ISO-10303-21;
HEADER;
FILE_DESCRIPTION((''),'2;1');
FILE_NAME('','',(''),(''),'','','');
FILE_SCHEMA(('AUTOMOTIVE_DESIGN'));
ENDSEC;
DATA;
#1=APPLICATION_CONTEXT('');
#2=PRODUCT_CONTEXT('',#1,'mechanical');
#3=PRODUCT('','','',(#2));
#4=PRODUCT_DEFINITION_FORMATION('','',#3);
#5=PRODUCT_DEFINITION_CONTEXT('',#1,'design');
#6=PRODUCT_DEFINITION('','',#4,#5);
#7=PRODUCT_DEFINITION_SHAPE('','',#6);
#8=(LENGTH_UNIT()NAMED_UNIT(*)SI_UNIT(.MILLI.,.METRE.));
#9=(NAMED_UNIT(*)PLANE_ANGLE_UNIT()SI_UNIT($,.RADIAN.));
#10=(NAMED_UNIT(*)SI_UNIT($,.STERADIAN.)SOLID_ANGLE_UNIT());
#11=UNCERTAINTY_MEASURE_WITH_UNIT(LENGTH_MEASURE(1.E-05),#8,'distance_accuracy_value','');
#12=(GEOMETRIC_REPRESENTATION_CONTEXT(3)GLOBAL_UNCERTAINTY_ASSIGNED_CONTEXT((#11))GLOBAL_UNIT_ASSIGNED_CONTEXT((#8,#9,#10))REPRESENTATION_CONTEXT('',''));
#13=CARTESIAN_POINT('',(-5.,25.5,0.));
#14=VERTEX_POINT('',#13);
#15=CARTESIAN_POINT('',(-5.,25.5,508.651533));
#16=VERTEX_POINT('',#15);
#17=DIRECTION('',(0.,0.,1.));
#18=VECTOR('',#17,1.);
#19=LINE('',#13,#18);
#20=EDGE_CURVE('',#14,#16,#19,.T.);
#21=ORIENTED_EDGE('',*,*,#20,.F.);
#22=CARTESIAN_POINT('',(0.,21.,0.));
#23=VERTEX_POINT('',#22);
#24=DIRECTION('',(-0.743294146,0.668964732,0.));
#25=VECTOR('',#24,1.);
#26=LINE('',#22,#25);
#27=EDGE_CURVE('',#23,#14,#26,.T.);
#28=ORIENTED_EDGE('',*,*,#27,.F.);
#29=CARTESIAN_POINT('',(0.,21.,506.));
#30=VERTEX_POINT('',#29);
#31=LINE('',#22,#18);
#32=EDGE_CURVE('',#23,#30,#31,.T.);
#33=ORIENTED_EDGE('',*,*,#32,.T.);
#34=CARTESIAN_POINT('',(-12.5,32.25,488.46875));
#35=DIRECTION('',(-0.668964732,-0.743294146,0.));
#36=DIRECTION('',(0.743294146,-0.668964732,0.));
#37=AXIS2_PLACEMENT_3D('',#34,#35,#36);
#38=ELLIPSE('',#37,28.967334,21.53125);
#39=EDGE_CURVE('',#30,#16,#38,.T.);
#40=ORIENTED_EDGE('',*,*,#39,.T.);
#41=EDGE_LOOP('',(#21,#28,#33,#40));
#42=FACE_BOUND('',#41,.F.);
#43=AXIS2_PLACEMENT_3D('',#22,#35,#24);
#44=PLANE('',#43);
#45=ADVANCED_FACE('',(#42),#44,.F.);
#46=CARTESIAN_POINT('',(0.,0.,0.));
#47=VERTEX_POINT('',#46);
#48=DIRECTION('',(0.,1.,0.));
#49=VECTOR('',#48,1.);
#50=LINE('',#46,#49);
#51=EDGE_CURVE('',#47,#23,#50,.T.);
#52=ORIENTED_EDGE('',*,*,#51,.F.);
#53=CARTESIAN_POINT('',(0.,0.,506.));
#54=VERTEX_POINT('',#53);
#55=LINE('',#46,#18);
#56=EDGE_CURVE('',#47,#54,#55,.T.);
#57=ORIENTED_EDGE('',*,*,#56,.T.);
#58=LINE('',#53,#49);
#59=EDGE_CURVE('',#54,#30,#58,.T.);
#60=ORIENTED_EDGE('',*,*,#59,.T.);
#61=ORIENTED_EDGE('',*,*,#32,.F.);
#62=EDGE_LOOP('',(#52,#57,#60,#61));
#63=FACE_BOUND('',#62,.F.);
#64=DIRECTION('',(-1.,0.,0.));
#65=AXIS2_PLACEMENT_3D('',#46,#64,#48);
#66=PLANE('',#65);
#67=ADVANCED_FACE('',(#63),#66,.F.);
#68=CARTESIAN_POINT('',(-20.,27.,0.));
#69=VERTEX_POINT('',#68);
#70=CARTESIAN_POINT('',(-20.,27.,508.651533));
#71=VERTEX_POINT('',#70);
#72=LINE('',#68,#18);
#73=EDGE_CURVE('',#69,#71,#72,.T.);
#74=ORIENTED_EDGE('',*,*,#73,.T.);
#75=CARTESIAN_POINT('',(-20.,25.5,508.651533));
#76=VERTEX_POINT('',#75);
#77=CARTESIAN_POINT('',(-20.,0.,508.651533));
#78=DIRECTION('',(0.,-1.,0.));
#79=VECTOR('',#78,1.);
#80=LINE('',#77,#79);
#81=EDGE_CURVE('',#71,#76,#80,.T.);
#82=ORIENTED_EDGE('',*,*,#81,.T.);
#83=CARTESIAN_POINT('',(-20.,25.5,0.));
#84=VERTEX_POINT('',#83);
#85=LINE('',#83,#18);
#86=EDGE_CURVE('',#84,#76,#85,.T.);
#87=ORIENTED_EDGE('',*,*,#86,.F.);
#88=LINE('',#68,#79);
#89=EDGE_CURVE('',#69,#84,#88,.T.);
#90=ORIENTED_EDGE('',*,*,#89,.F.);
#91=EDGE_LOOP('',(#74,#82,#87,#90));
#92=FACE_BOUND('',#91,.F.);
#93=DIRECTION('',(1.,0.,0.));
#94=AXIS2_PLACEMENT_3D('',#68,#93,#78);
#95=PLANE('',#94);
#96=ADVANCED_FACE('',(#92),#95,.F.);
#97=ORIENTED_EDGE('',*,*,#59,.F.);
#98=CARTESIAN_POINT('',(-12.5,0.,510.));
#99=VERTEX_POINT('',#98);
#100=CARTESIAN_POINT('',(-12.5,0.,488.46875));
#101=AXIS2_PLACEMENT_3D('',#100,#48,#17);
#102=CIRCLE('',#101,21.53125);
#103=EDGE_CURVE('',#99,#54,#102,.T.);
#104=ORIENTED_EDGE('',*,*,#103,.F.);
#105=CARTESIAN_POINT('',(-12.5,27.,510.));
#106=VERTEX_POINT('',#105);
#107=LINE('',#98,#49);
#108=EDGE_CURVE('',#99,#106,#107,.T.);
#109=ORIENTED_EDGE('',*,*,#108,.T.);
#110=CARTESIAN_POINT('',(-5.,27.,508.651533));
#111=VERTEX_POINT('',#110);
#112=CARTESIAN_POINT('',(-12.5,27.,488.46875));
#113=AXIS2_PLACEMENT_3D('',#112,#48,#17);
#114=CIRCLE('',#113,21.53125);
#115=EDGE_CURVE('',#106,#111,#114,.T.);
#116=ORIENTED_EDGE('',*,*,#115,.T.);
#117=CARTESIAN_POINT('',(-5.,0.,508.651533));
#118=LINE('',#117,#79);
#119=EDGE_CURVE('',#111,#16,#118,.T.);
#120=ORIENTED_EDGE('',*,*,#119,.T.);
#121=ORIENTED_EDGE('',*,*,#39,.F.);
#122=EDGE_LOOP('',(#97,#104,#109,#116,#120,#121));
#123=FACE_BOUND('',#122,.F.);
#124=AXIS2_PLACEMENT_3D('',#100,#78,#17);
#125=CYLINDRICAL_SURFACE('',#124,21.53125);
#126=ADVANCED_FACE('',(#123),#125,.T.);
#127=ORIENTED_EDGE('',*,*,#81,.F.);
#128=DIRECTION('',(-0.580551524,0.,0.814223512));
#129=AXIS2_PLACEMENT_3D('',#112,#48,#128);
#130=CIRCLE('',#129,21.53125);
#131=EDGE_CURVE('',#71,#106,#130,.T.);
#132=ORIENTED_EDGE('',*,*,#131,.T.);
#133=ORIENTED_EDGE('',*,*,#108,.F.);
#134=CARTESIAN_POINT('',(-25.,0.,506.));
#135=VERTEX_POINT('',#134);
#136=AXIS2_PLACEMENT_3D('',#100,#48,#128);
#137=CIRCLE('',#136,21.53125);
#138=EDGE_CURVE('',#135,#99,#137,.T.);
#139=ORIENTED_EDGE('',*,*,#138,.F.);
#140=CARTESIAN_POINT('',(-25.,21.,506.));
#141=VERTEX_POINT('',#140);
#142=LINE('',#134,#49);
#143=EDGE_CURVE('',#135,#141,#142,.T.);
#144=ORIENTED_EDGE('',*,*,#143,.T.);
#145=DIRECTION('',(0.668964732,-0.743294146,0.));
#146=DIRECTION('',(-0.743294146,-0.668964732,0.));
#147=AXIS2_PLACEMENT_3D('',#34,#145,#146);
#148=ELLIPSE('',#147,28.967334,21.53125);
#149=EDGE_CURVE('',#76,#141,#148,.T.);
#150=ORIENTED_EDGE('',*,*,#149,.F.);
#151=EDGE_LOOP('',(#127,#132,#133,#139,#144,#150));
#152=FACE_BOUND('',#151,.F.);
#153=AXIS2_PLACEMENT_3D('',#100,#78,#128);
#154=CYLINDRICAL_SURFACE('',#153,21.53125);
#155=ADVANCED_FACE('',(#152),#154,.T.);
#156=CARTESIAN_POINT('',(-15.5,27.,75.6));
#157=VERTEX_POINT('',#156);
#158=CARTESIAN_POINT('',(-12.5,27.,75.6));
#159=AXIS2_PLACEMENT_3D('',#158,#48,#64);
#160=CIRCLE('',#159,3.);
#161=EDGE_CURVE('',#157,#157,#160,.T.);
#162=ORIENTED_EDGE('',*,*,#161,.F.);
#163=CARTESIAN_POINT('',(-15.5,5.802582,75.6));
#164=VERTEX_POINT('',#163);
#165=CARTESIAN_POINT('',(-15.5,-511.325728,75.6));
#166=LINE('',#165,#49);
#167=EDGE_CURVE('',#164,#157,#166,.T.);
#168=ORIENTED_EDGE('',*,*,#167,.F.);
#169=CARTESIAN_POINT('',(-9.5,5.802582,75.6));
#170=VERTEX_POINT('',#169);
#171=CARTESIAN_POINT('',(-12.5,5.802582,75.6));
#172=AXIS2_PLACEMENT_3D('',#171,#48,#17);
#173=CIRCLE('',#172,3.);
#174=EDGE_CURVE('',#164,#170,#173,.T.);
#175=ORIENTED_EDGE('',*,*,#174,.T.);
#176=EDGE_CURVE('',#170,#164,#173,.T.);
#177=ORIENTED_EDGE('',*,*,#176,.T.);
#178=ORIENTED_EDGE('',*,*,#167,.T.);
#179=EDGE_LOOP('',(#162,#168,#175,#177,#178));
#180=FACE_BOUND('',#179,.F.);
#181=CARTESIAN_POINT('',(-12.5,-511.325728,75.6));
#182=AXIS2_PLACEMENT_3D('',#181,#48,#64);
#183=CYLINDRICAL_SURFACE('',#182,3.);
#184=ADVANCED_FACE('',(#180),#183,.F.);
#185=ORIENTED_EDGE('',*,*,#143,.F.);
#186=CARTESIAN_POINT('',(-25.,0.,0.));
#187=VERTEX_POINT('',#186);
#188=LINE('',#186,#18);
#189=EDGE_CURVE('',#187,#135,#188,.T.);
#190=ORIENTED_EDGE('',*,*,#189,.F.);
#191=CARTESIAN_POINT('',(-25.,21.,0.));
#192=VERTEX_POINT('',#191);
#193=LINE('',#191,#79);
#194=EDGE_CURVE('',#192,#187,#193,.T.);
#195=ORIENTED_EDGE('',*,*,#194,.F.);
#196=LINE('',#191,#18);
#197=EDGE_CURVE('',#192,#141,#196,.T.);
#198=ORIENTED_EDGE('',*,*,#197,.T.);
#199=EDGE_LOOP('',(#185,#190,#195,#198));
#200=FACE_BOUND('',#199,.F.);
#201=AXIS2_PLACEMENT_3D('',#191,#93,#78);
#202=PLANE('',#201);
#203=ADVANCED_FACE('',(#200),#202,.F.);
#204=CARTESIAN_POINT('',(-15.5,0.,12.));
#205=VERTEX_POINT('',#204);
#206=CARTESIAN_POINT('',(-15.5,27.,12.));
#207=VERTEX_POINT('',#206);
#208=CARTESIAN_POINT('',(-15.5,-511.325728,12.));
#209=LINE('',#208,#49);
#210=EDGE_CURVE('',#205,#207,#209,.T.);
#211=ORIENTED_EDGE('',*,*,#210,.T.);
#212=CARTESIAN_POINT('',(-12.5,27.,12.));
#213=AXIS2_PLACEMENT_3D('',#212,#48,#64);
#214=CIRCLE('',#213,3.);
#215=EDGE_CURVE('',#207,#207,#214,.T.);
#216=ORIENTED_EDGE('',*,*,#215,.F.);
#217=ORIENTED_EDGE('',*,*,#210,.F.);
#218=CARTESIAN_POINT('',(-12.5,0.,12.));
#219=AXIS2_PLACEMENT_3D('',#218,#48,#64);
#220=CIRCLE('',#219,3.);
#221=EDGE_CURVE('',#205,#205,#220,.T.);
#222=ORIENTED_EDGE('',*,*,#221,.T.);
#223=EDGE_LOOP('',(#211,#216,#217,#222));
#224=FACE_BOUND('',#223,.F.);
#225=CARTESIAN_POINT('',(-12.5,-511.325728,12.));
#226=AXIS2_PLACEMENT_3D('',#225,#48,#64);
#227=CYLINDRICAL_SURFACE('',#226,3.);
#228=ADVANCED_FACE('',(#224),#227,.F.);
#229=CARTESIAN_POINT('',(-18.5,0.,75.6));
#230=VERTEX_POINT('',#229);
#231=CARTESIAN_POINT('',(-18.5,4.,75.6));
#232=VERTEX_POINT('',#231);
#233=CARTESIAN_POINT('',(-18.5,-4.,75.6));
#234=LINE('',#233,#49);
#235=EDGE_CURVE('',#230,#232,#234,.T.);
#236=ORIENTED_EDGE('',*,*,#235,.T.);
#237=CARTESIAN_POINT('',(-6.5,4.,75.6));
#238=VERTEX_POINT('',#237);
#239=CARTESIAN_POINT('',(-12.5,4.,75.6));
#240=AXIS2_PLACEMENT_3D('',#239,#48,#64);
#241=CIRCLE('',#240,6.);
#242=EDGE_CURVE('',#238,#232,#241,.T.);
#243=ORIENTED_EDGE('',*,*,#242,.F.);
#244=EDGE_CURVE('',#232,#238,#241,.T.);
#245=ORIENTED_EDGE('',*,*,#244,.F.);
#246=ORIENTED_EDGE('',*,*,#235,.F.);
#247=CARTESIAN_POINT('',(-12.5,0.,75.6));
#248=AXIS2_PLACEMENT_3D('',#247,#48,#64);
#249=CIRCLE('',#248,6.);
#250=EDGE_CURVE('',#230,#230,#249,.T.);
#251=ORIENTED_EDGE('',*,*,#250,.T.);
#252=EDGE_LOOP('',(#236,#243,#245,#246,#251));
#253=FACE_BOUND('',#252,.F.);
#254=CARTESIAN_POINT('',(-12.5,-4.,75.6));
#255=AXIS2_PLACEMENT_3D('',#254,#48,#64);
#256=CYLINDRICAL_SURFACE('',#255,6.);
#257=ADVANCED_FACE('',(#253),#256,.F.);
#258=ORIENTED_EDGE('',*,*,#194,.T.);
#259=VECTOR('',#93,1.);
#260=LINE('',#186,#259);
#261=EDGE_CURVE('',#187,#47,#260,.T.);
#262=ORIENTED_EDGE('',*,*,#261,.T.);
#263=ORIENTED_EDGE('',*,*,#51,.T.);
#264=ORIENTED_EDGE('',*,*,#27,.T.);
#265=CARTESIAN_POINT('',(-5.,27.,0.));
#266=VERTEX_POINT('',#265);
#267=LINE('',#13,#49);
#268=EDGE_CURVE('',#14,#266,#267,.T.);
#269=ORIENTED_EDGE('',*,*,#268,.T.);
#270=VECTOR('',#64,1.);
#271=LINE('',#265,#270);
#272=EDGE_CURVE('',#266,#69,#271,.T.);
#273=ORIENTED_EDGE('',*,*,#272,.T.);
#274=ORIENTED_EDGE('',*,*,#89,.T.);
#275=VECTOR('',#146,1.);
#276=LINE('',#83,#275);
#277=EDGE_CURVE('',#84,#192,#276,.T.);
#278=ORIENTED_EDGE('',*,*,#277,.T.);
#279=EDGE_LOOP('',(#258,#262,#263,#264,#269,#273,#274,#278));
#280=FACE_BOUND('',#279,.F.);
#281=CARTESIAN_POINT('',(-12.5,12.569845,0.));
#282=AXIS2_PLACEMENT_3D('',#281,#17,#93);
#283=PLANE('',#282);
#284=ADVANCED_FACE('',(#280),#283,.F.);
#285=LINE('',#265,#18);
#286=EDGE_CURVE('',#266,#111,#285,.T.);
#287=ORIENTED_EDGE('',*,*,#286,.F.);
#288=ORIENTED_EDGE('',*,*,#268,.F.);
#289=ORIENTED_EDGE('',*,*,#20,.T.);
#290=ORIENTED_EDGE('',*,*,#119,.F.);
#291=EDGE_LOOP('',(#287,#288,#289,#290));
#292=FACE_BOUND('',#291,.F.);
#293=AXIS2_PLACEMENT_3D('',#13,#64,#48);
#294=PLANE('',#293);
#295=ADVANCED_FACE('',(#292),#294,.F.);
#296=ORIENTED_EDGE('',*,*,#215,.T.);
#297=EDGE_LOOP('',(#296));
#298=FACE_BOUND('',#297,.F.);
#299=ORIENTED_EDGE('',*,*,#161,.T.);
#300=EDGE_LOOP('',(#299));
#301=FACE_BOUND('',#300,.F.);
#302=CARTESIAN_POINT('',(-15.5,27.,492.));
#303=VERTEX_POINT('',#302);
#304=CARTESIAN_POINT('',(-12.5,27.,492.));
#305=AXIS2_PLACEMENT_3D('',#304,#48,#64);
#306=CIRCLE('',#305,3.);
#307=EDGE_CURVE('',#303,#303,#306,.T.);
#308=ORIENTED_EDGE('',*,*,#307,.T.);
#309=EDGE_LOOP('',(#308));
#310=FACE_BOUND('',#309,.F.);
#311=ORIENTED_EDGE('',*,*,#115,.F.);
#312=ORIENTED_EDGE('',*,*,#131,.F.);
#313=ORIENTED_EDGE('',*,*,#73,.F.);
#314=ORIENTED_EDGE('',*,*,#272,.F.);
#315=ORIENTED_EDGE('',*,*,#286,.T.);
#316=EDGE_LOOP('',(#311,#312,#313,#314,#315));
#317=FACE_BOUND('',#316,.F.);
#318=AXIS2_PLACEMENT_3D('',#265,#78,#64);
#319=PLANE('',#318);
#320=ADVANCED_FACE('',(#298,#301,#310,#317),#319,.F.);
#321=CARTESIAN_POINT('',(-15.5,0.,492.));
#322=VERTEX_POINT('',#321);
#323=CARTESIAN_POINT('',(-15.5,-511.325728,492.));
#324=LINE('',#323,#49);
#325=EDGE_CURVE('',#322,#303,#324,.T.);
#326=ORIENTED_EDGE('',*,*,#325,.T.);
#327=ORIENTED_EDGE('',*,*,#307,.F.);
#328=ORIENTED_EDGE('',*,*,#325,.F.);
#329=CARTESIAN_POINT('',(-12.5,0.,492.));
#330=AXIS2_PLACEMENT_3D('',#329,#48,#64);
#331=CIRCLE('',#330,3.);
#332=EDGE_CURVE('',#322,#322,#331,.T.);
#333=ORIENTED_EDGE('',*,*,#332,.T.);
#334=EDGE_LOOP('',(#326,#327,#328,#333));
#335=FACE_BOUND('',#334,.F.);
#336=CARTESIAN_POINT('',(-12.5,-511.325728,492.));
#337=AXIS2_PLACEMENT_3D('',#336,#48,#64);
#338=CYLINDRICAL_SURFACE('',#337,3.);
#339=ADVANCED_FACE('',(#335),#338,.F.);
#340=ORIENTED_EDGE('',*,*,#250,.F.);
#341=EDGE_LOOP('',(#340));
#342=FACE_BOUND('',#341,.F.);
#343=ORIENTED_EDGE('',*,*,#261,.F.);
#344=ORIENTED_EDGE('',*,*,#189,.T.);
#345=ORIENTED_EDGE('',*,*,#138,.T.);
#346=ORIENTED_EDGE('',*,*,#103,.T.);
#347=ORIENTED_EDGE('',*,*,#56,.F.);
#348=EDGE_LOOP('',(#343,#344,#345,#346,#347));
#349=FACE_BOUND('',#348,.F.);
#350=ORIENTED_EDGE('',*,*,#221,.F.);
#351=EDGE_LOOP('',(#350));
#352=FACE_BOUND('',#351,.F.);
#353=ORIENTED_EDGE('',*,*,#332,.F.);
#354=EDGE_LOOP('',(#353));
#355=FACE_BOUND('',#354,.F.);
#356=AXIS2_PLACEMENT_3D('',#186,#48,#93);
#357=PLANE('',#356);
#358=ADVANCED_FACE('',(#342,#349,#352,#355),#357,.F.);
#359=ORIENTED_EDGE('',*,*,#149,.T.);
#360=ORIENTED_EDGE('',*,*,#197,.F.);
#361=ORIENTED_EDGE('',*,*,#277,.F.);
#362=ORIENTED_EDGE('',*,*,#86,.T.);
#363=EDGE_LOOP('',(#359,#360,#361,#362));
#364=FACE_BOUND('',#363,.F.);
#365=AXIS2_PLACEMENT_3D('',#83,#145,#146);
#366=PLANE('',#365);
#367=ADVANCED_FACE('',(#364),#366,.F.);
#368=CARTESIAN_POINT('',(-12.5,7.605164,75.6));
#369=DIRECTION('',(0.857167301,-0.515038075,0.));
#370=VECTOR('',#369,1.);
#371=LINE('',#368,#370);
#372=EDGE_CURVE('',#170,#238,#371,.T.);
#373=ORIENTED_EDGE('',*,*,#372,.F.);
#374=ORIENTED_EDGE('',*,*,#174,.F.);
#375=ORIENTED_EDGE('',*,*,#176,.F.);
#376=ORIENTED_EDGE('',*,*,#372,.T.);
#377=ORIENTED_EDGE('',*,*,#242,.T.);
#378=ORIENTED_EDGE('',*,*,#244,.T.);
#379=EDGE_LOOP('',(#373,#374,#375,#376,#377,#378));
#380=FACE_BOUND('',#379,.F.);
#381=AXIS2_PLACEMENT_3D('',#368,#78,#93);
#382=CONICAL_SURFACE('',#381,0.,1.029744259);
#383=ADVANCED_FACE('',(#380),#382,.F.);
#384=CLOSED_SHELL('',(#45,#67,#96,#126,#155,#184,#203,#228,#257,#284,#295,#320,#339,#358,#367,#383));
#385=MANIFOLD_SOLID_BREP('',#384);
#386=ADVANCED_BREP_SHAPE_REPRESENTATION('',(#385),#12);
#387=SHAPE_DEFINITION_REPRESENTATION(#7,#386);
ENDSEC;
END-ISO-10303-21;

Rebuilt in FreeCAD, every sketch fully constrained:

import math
import FreeCAD as App
import Part
import Sketcher
Q = App.Units.Quantity

doc = App.newDocument("Part")
body = doc.addObject("PartDesign::Body", "Body")

sketch1 = body.newObject("Sketcher::SketchObject", "Sketch")
sketch1.AttachmentSupport = (doc.getObject("XY_Plane"), [""])
sketch1.MapMode = "FlatFace"
sketch1.addGeometry(Part.LineSegment(App.Vector(-25, 0, 0), App.Vector(0, 0, 0)), False)
sketch1.addGeometry(Part.LineSegment(App.Vector(0, 0, 0), App.Vector(0, 21, 0)), False)
sketch1.addGeometry(Part.LineSegment(App.Vector(0, 21, 0), App.Vector(-5, 25.5, 0)), False)
sketch1.addGeometry(Part.LineSegment(App.Vector(-5, 25.5, 0), App.Vector(-5, 27, 0)), False)
sketch1.addGeometry(Part.LineSegment(App.Vector(-5, 27, 0), App.Vector(-20, 27, 0)), False)
sketch1.addGeometry(Part.LineSegment(App.Vector(-20, 27, 0), App.Vector(-20, 25.5, 0)), False)
sketch1.addGeometry(Part.LineSegment(App.Vector(-20, 25.5, 0), App.Vector(-25, 21, 0)), False)
sketch1.addGeometry(Part.LineSegment(App.Vector(-25, 21, 0), App.Vector(-25, 0, 0)), False)
sketch1.addConstraint(Sketcher.Constraint("Coincident", 0, 2, 1, 1))
sketch1.addConstraint(Sketcher.Constraint("Coincident", 1, 2, 2, 1))
sketch1.addConstraint(Sketcher.Constraint("Coincident", 2, 2, 3, 1))
sketch1.addConstraint(Sketcher.Constraint("Coincident", 3, 2, 4, 1))
sketch1.addConstraint(Sketcher.Constraint("Coincident", 4, 2, 5, 1))
sketch1.addConstraint(Sketcher.Constraint("Coincident", 5, 2, 6, 1))
sketch1.addConstraint(Sketcher.Constraint("Coincident", 6, 2, 7, 1))
sketch1.addConstraint(Sketcher.Constraint("Coincident", 7, 2, 0, 1))
sketch1.addConstraint(Sketcher.Constraint("Horizontal", 0))
sketch1.addConstraint(Sketcher.Constraint("Vertical", 1))
sketch1.addConstraint(Sketcher.Constraint("Vertical", 3))
sketch1.addConstraint(Sketcher.Constraint("Horizontal", 4))
sketch1.addConstraint(Sketcher.Constraint("Vertical", 5))
sketch1.addConstraint(Sketcher.Constraint("Vertical", 7))
sketch1.addConstraint(Sketcher.Constraint("Coincident", 0, 2, -1, 1))
sketch1.addConstraint(Sketcher.Constraint("Horizontal", 2, 2, 5, 2))
sketch1.addConstraint(Sketcher.Constraint("Horizontal", 1, 2, 6, 2))
sketch1.addConstraint(Sketcher.Constraint("Equal", 2, 6))
sketch1.addConstraint(Sketcher.Constraint("DistanceX", 0, 1, 0, 2, Q("25 mm")))
sketch1.addConstraint(Sketcher.Constraint("DistanceX", 4, 2, 4, 1, Q("15 mm")))
sketch1.addConstraint(Sketcher.Constraint("DistanceY", 1, 1, 1, 2, Q("21 mm")))
sketch1.addConstraint(Sketcher.Constraint("DistanceY", 3, 1, 3, 2, Q("1.5 mm")))
sketch1.addConstraint(Sketcher.Constraint("DistanceY", -1, 1, 3, 2, Q("27 mm")))
pad1 = body.newObject("PartDesign::Pad", "Pad")
pad1.Profile = sketch1
pad1.Length = 510

sketch2 = body.newObject("Sketcher::SketchObject", "Sketch001")
sketch2.AttachmentSupport = (doc.getObject("XZ_Plane"), [""])
sketch2.MapMode = "FlatFace"
sketch2.addGeometry(Part.ArcOfCircle(Part.Circle(App.Vector(-12.5, 488.5, 0), App.Vector(0, 0, 1), 21.5), math.radians(90), math.radians(125)), False)
sketch2.addGeometry(Part.LineSegment(App.Vector(-12.5, 510, 0), App.Vector(-25, 510, 0)), False)
sketch2.addGeometry(Part.LineSegment(App.Vector(-25, 510, 0), App.Vector(-25, 506, 0)), False)
sketch2.addGeometry(Part.LineSegment(App.Vector(0, 510, 0), App.Vector(-12.5, 510, 0)), False)
sketch2.addGeometry(Part.ArcOfCircle(Part.Circle(App.Vector(-12.5, 488.5, 0), App.Vector(0, 0, 1), 21.5), math.radians(55), math.radians(90)), False)
sketch2.addGeometry(Part.LineSegment(App.Vector(0, 506, 0), App.Vector(0, 510, 0)), False)
sketch2.addConstraint(Sketcher.Constraint("Tangent", 0, 1, 1, 1))
sketch2.addConstraint(Sketcher.Constraint("Coincident", 1, 2, 2, 1))
sketch2.addConstraint(Sketcher.Constraint("Coincident", 2, 2, 0, 2))
sketch2.addConstraint(Sketcher.Constraint("Tangent", 3, 2, 4, 2))
sketch2.addConstraint(Sketcher.Constraint("Coincident", 4, 1, 5, 1))
sketch2.addConstraint(Sketcher.Constraint("Coincident", 5, 2, 3, 1))
sketch2.addConstraint(Sketcher.Constraint("Horizontal", 1))
sketch2.addConstraint(Sketcher.Constraint("Vertical", 2))
sketch2.addConstraint(Sketcher.Constraint("Horizontal", 3))
sketch2.addConstraint(Sketcher.Constraint("Vertical", 5))
sketch2.addConstraint(Sketcher.Constraint("Coincident", 4, 3, 0, 3))
sketch2.addConstraint(Sketcher.Constraint("Equal", 0, 4))
sketch2.addConstraint(Sketcher.Constraint("PointOnObject", 4, 1, -2))
sketch2.addConstraint(Sketcher.Constraint("Horizontal", 2, 2, 4, 1))
sketch2.addConstraint(Sketcher.Constraint("DistanceY", 2, 2, 2, 1, Q("4 mm")))
sketch2.addConstraint(Sketcher.Constraint("DistanceX", 1, 2, 1, 1, Q("12.5 mm")))
sketch2.addConstraint(Sketcher.Constraint("DistanceY", -1, 1, 0, 1, Q("510 mm")))
pocket1 = body.newObject("PartDesign::Pocket", "Pocket")
pocket1.Profile = sketch2
pocket1.Length = 27

sketch3 = body.newObject("Sketcher::SketchObject", "Sketch002")
sketch3.AttachmentSupport = (doc.getObject("XZ_Plane"), [""])
sketch3.MapMode = "FlatFace"
sketch3.addGeometry(Part.Circle(App.Vector(-12.5, 492, 0), App.Vector(0, 0, 1), 3), False)
sketch3.addGeometry(Part.Circle(App.Vector(-12.5, 12, 0), App.Vector(0, 0, 1), 3), False)
sketch3.addGeometry(Part.Circle(App.Vector(-12.5, 75.6, 0), App.Vector(0, 0, 1), 3), False)
sketch3.addConstraint(Sketcher.Constraint("Equal", 0, 1))
sketch3.addConstraint(Sketcher.Constraint("Equal", 1, 2))
sketch3.addConstraint(Sketcher.Constraint("Vertical", 0, 3, 1, 3))
sketch3.addConstraint(Sketcher.Constraint("Vertical", 1, 3, 2, 3))
sketch3.addConstraint(Sketcher.Constraint("Diameter", 0, Q("6 mm")))
sketch3.addConstraint(Sketcher.Constraint("DistanceY", -1, 1, 0, 3, Q("492 mm")))
sketch3.addConstraint(Sketcher.Constraint("DistanceY", -1, 1, 1, 3, Q("12 mm")))
sketch3.addConstraint(Sketcher.Constraint("DistanceX", 0, 3, -1, 1, Q("12.5 mm")))
sketch3.addConstraint(Sketcher.Constraint("DistanceY", -1, 1, 2, 3, Q("75.6 mm")))
doc.recompute()
hole = body.newObject("PartDesign::Hole", "Hole")
hole.Profile = sketch3
hole.ThreadType = "None"
hole.Diameter = 6
hole.DepthType = "ThroughAll"

sketch4 = body.newObject("Sketcher::SketchObject", "Sketch003")
sketch4.AttachmentSupport = (doc.getObject("XZ_Plane"), [""])
sketch4.MapMode = "FlatFace"
sketch4.addGeometry(Part.Circle(App.Vector(-12, 76, 0), App.Vector(0, 0, 1), 6), False)
sketch4.addConstraint(Sketcher.Constraint("Diameter", 0, Q("12 mm")))
sketch4.addConstraint(Sketcher.Constraint("DistanceX", 0, 3, -1, 1, Q("12.5 mm")))
sketch4.addConstraint(Sketcher.Constraint("DistanceY", -1, 1, 0, 3, Q("75.6 mm")))
doc.recompute()
hole2 = body.newObject("PartDesign::Hole", "Hole001")
hole2.Profile = sketch4
hole2.ThreadType = "None"
hole2.Diameter = 12
hole2.DepthType = "Dimension"
hole2.Depth = 4
hole2.DrillPoint = "Angled"
hole2.DrillPointAngle = 118

doc.recompute()
